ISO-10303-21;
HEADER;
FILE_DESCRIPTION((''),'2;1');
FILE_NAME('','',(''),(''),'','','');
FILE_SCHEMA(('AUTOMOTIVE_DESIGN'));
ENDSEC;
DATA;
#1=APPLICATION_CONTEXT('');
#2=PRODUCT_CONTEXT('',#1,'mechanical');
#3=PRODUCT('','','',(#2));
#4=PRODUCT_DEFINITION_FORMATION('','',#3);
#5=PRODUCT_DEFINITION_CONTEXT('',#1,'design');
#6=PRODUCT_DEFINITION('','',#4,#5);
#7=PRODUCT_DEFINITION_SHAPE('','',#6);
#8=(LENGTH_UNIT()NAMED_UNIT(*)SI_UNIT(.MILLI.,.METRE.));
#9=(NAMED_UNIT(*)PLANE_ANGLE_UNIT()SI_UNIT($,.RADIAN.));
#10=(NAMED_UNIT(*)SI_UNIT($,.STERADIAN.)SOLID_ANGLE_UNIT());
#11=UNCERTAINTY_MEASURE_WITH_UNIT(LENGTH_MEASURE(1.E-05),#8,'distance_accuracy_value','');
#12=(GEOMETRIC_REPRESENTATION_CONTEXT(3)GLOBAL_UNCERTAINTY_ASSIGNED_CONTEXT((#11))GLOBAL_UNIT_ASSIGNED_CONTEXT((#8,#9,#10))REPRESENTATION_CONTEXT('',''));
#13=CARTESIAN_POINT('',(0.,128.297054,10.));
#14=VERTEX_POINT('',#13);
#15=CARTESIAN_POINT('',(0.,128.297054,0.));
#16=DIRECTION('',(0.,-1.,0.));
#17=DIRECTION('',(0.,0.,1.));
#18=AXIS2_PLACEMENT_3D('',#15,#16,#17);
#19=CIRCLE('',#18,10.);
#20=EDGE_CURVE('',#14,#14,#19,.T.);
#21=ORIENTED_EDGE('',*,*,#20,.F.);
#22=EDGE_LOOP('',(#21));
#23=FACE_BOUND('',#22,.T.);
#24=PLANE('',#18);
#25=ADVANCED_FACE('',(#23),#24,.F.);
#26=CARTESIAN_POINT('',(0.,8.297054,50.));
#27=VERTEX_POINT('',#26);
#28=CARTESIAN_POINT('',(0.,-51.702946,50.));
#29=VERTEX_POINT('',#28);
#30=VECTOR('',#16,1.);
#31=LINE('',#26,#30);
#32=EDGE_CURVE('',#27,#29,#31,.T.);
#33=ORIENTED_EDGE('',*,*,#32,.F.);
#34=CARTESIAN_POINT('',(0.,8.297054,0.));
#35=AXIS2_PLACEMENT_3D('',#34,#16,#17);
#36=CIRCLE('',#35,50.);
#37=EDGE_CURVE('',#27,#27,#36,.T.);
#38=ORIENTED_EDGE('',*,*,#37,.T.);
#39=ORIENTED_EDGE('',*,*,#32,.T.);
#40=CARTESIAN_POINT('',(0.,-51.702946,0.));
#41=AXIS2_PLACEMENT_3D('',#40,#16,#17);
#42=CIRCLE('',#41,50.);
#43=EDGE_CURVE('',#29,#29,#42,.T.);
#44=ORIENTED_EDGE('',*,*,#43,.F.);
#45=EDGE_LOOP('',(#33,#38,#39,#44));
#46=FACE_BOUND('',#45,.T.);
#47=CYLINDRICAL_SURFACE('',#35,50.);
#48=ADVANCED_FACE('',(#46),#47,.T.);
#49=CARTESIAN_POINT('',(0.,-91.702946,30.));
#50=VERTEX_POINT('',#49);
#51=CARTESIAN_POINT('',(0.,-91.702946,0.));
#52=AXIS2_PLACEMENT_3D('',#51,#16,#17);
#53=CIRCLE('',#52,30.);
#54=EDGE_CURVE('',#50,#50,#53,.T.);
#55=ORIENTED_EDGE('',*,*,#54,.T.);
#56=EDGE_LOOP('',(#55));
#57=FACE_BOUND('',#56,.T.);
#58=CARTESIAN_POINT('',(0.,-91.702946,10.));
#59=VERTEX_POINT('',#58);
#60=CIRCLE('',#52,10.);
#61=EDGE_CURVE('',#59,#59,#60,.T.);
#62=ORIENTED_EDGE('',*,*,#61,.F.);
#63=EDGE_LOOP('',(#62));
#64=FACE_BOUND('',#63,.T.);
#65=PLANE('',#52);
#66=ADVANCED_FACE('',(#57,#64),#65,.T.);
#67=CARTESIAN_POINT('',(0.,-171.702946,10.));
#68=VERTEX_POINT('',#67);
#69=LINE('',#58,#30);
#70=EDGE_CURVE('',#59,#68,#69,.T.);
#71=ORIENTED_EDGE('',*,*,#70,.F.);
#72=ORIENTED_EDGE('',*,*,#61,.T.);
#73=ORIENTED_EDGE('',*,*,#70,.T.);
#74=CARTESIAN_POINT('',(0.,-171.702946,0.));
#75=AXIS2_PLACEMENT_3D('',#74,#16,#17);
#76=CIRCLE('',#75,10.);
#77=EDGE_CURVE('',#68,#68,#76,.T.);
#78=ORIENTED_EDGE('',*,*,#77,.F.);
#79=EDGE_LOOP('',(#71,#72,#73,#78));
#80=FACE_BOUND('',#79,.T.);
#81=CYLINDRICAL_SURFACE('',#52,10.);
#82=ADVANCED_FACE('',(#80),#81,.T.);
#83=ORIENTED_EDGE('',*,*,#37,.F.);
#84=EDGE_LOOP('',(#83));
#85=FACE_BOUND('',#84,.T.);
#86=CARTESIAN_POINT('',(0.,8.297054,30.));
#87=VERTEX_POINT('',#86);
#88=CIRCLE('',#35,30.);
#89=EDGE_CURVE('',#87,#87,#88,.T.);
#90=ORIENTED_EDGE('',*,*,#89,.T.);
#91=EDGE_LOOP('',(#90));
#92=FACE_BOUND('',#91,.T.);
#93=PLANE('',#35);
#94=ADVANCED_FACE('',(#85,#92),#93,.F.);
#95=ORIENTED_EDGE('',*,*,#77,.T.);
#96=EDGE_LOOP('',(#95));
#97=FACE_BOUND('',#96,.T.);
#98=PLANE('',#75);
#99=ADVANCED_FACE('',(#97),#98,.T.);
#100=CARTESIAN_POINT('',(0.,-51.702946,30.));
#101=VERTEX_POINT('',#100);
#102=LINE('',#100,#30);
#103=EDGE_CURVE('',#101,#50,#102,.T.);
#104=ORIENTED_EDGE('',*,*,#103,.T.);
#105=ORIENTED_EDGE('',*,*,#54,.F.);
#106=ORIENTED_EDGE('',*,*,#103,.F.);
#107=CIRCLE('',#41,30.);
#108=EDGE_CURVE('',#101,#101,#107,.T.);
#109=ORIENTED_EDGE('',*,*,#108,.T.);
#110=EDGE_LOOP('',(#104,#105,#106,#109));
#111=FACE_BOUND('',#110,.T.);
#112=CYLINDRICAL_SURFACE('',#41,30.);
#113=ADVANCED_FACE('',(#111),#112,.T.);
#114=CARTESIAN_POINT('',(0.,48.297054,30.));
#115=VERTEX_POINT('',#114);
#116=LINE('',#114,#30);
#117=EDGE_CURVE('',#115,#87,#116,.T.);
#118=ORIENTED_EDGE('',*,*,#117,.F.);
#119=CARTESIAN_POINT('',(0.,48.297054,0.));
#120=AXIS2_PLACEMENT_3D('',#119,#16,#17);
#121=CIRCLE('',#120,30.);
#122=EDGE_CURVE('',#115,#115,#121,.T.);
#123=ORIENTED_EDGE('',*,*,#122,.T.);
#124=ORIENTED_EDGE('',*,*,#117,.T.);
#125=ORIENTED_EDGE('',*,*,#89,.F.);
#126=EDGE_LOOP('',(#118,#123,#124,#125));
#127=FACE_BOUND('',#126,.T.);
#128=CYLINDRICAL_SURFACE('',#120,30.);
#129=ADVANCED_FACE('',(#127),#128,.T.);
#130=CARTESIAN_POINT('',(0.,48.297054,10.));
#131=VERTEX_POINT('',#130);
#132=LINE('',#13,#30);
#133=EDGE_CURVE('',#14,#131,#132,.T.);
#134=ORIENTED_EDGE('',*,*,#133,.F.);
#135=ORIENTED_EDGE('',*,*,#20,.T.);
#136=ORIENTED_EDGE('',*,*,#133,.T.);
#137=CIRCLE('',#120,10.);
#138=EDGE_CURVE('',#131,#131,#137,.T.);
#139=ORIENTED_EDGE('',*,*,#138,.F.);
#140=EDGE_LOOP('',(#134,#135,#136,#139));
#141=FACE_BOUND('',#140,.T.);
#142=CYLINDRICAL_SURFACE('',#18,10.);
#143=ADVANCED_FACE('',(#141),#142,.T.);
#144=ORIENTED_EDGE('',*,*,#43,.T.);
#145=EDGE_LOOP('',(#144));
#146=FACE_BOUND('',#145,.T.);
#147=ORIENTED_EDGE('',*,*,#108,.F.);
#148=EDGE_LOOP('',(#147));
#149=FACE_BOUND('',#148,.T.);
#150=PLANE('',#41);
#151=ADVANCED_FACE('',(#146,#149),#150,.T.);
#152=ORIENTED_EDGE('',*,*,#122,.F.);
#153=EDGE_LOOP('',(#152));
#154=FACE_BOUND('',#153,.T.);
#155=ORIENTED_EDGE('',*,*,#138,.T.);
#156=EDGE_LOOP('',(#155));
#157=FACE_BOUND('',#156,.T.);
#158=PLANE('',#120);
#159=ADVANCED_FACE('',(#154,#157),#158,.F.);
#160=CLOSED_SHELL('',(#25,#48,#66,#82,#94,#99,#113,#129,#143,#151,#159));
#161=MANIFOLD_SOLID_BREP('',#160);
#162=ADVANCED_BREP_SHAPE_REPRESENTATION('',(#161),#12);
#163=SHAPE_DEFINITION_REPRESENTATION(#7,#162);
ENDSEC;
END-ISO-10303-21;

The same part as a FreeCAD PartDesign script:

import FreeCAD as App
import Part
import Sketcher
from FreeCAD import Vector

doc = App.newDocument("Part")
body = doc.addObject("PartDesign::Body", "Body")

# Sketch on XY plane
sketch1 = body.newObject("Sketcher::SketchObject", "Sketch")
sketch1.AttachmentSupport = (doc.getObject("XY_Plane"), [""])
sketch1.MapMode = "FlatFace"
sketch1.addGeometry([
    Part.LineSegment(Vector(30, 48.297054, 0), Vector(10, 48.297054, 0)),  # 0
    Part.LineSegment(Vector(10, 48.297054, 0), Vector(10, 128.297054, 0)),  # 1
    Part.LineSegment(Vector(10, 128.297054, 0), Vector(0, 128.297054, 0)),  # 2
    Part.LineSegment(Vector(0, 128.297054, 0), Vector(0, -171.702946, 0)),  # 3
    Part.LineSegment(Vector(0, -171.702946, 0), Vector(10, -171.702946, 0)),  # 4
    Part.LineSegment(Vector(10, -171.702946, 0), Vector(10, -91.702946, 0)),  # 5
    Part.LineSegment(Vector(10, -91.702946, 0), Vector(30, -91.702946, 0)),  # 6
    Part.LineSegment(Vector(30, -91.702946, 0), Vector(30, -51.702946, 0)),  # 7
    Part.LineSegment(Vector(30, -51.702946, 0), Vector(50, -51.702946, 0)),  # 8
    Part.LineSegment(Vector(50, -51.702946, 0), Vector(50, 8.297054, 0)),  # 9
    Part.LineSegment(Vector(50, 8.297054, 0), Vector(30, 8.297054, 0)),  # 10
    Part.LineSegment(Vector(30, 8.297054, 0), Vector(30, 48.297054, 0)),  # 11
], False)
sketch1.addConstraint([
    Sketcher.Constraint("Coincident", 0, 2, 1, 1),
    Sketcher.Constraint("Coincident", 1, 2, 2, 1),
    Sketcher.Constraint("Coincident", 2, 2, 3, 1),
    Sketcher.Constraint("Coincident", 3, 2, 4, 1),
    Sketcher.Constraint("Coincident", 4, 2, 5, 1),
    Sketcher.Constraint("Coincident", 5, 2, 6, 1),
    Sketcher.Constraint("Coincident", 6, 2, 7, 1),
    Sketcher.Constraint("Coincident", 7, 2, 8, 1),
    Sketcher.Constraint("Coincident", 8, 2, 9, 1),
    Sketcher.Constraint("Coincident", 9, 2, 10, 1),
    Sketcher.Constraint("Coincident", 10, 2, 11, 1),
    Sketcher.Constraint("Coincident", 11, 2, 0, 1),
    Sketcher.Constraint("Horizontal", 0),
    Sketcher.Constraint("Vertical", 1),
    Sketcher.Constraint("Horizontal", 2),
    Sketcher.Constraint("Vertical", 3),
    Sketcher.Constraint("Horizontal", 4),
    Sketcher.Constraint("Vertical", 5),
    Sketcher.Constraint("Horizontal", 6),
    Sketcher.Constraint("Vertical", 7),
    Sketcher.Constraint("Horizontal", 8),
    Sketcher.Constraint("Vertical", 9),
    Sketcher.Constraint("Horizontal", 10),
    Sketcher.Constraint("Vertical", 11),
    Sketcher.Constraint("PointOnObject", 2, 2, -2),
    Sketcher.Constraint("Vertical", 1, 2, 4, 2),
    Sketcher.Constraint("Vertical", 7, 2, 10, 2),
    Sketcher.Constraint("Equal", 6, 8),
    Sketcher.Constraint("Equal", 1, 5),
    Sketcher.Constraint("Equal", 7, 11),
    Sketcher.Constraint("DistanceX", 0, 2, 0, 1, 20.0),
    Sketcher.Constraint("DistanceX", 2, 2, 2, 1, 10.0),
    Sketcher.Constraint("DistanceY", 1, 1, 1, 2, 80.0),
    Sketcher.Constraint("DistanceY", 3, 2, 3, 1, 300.0),
    Sketcher.Constraint("DistanceY", 7, 1, 7, 2, 40.0),
    Sketcher.Constraint("DistanceY", -1, 1, 0, 2, 48.297054),
])
revolution = body.newObject("PartDesign::Revolution", "Revolution")
revolution.Profile = sketch1
revolution.ReferenceAxis = (sketch1, ["V_Axis"])
revolution.Angle = 360

doc.recompute()
